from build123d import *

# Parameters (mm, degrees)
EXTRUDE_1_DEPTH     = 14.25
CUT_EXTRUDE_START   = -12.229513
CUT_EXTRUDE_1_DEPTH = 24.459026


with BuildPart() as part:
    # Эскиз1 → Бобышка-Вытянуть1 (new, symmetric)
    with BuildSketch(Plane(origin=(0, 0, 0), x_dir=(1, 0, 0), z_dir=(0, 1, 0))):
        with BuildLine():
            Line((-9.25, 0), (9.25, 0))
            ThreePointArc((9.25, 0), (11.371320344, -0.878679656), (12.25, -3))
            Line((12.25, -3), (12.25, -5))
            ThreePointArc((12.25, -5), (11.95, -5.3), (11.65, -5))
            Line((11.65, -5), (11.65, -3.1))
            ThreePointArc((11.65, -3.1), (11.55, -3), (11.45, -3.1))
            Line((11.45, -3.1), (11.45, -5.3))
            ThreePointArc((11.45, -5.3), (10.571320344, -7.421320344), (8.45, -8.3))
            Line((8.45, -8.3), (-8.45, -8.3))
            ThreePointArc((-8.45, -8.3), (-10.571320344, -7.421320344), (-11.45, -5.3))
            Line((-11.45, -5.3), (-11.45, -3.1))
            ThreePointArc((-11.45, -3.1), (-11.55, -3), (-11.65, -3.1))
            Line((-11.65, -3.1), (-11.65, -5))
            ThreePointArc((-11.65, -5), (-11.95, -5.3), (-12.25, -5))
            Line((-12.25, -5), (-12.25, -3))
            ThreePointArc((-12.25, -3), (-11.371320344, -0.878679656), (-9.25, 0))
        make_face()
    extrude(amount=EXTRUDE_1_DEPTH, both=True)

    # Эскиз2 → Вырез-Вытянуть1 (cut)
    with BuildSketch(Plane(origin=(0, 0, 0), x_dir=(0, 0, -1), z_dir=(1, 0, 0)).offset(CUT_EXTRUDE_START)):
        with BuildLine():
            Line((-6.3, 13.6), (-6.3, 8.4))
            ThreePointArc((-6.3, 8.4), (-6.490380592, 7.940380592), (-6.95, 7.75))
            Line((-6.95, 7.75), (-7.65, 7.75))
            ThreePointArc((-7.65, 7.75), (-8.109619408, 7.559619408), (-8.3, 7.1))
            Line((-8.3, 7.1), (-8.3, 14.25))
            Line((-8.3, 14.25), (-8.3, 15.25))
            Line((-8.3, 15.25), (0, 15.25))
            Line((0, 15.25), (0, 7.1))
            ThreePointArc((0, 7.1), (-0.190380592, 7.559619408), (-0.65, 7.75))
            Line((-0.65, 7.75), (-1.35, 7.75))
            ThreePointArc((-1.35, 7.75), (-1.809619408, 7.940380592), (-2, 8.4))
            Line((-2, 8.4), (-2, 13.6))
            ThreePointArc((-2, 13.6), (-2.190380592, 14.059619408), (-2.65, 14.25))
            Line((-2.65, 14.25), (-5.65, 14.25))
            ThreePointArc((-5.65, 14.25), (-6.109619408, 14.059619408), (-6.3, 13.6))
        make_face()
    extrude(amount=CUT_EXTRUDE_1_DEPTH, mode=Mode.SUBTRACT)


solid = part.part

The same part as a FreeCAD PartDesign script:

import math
import FreeCAD as App
import Part
import Sketcher
from FreeCAD import Vector

doc = App.newDocument("Part")
body = doc.addObject("PartDesign::Body", "Body")

# Sketch on XZ plane
sketch1 = doc.addObject("Sketcher::SketchObject", "Sketch")
body.addObject(sketch1)
sketch1.AttachmentSupport = (doc.XZ_Plane, [""])
sketch1.MapMode = "FlatFace"
sketch1.addGeometry(Part.LineSegment(Vector(9.25, 0, 0), Vector(-9.25, 0, 0)), False)
sketch1.addGeometry(Part.ArcOfCircle(Part.Circle(Vector(-9.25, 3, 0), Vector(0, 0, 1), 3), math.radians(180), math.radians(270)), False)
sketch1.addGeometry(Part.LineSegment(Vector(-12.25, 3, 0), Vector(-12.25, 5, 0)), False)
sketch1.addGeometry(Part.ArcOfCircle(Part.Circle(Vector(-11.95, 5, 0), Vector(0, 0, 1), 0.3), math.radians(0), math.radians(180)), False)
sketch1.addGeometry(Part.LineSegment(Vector(-11.65, 5, 0), Vector(-11.65, 3.1, 0)), False)
sketch1.addGeometry(Part.ArcOfCircle(Part.Circle(Vector(-11.55, 3.1, 0), Vector(0, 0, 1), 0.1), math.radians(180), math.radians(360)), False)
sketch1.addGeometry(Part.LineSegment(Vector(-11.45, 3.1, 0), Vector(-11.45, 5.3, 0)), False)
sketch1.addGeometry(Part.ArcOfCircle(Part.Circle(Vector(-8.45, 5.3, 0), Vector(0, 0, 1), 3), math.radians(90), math.radians(180)), False)
sketch1.addGeometry(Part.LineSegment(Vector(-8.45, 8.3, 0), Vector(8.45, 8.3, 0)), False)
sketch1.addGeometry(Part.ArcOfCircle(Part.Circle(Vector(8.45, 5.3, 0), Vector(0, 0, 1), 3), math.radians(0), math.radians(90)), False)
sketch1.addGeometry(Part.LineSegment(Vector(11.45, 5.3, 0), Vector(11.45, 3.1, 0)), False)
sketch1.addGeometry(Part.ArcOfCircle(Part.Circle(Vector(11.55, 3.1, 0), Vector(0, 0, 1), 0.1), math.radians(180), math.radians(360)), False)
sketch1.addGeometry(Part.LineSegment(Vector(11.65, 3.1, 0), Vector(11.65, 5, 0)), False)
sketch1.addGeometry(Part.ArcOfCircle(Part.Circle(Vector(11.95, 5, 0), Vector(0, 0, 1), 0.3), math.radians(0), math.radians(180)), False)
sketch1.addGeometry(Part.LineSegment(Vector(12.25, 5, 0), Vector(12.25, 3, 0)), False)
sketch1.addGeometry(Part.ArcOfCircle(Part.Circle(Vector(9.25, 3, 0), Vector(0, 0, 1), 3), math.radians(-90), math.radians(0)), False)
sketch1.addConstraint(Sketcher.Constraint("Tangent", 0, 2, 1, 2))
sketch1.addConstraint(Sketcher.Constraint("Tangent", 1, 1, 2, 1))
sketch1.addConstraint(Sketcher.Constraint("Tangent", 2, 2, 3, 2))
sketch1.addConstraint(Sketcher.Constraint("Tangent", 3, 1, 4, 1))
sketch1.addConstraint(Sketcher.Constraint("Tangent", 4, 2, 5, 1))
sketch1.addConstraint(Sketcher.Constraint("Tangent", 5, 2, 6, 1))
sketch1.addConstraint(Sketcher.Constraint("Tangent", 6, 2, 7, 2))
sketch1.addConstraint(Sketcher.Constraint("Tangent", 7, 1, 8, 1))
sketch1.addConstraint(Sketcher.Constraint("Tangent", 8, 2, 9, 2))
sketch1.addConstraint(Sketcher.Constraint("Tangent", 9, 1, 10, 1))
sketch1.addConstraint(Sketcher.Constraint("Tangent", 10, 2, 11, 1))
sketch1.addConstraint(Sketcher.Constraint("Tangent", 11, 2, 12, 1))
sketch1.addConstraint(Sketcher.Constraint("Tangent", 12, 2, 13, 2))
sketch1.addConstraint(Sketcher.Constraint("Tangent", 13, 1, 14, 1))
sketch1.addConstraint(Sketcher.Constraint("Tangent", 14, 2, 15, 2))
sketch1.addConstraint(Sketcher.Constraint("Tangent", 15, 1, 0, 1))
sketch1.addConstraint(Sketcher.Constraint("Horizontal", 0))
sketch1.addConstraint(Sketcher.Constraint("Vertical", 2))
sketch1.addConstraint(Sketcher.Constraint("Vertical", 4))
sketch1.addConstraint(Sketcher.Constraint("Vertical", 6))
sketch1.addConstraint(Sketcher.Constraint("Horizontal", 8))
sketch1.addConstraint(Sketcher.Constraint("Vertical", 10))
sketch1.addConstraint(Sketcher.Constraint("Vertical", 12))
sketch1.addConstraint(Sketcher.Constraint("Vertical", 14))
sketch1.addConstraint(Sketcher.Constraint("Equal", 1, 7))
sketch1.addConstraint(Sketcher.Constraint("Equal", 7, 9))
sketch1.addConstraint(Sketcher.Constraint("Equal", 5, 11))
sketch1.addConstraint(Sketcher.Constraint("Equal", 3, 13))
sketch1.addConstraint(Sketcher.Constraint("Equal", 9, 15))
sketch1.addConstraint(Sketcher.Constraint("Symmetric", 0, 2, 15, 1, -1, 1))
sketch1.addConstraint(Sketcher.Constraint("Horizontal", 5, 3, 11, 3))
sketch1.addConstraint(Sketcher.Constraint("Horizontal", 3, 3, 13, 3))
sketch1.addConstraint(Sketcher.Constraint("Radius", 1, 3.0))
sketch1.addConstraint(Sketcher.Constraint("Radius", 3, 0.3))
sketch1.addConstraint(Sketcher.Constraint("Radius", 5, 0.1))
sketch1.addConstraint(Sketcher.Constraint("DistanceY", 2, 1, 2, 2, 2.0))
sketch1.addConstraint(Sketcher.Constraint("DistanceX", 0, 2, 0, 1, 18.5))
sketch1.addConstraint(Sketcher.Constraint("DistanceY", 4, 2, 4, 1, 1.9))
sketch1.addConstraint(Sketcher.Constraint("DistanceY", 6, 1, 6, 2, 2.2))
pad1 = doc.addObject("PartDesign::Pad", "Pad")
body.addObject(pad1)
pad1.Profile = sketch1
pad1.Length = 28.5
pad1.Midplane = True

# Sketch on YZ plane
sketch2 = doc.addObject("Sketcher::SketchObject", "Sketch001")
body.addObject(sketch2)
sketch2.AttachmentSupport = (doc.YZ_Plane, [""])
sketch2.MapMode = "FlatFace"
sketch2.AttachmentOffset = App.Placement(Vector(0, 0, -12.229513), App.Rotation())
sketch2.addGeometry(Part.LineSegment(Vector(8.4, 6.3, 0), Vector(13.6, 6.3, 0)), False)
sketch2.addGeometry(Part.ArcOfCircle(Part.Circle(Vector(13.6, 5.7, 0), Vector(0, 0, 1), 0.6), math.radians(0), math.radians(90)), False)
sketch2.addGeometry(Part.LineSegment(Vector(14.2, 5.7, 0), Vector(14.2, 2.6, 0)), False)
sketch2.addGeometry(Part.ArcOfCircle(Part.Circle(Vector(13.6, 2.6, 0), Vector(0, 0, 1), 0.6), math.radians(-90), math.radians(0)), False)
sketch2.addGeometry(Part.LineSegment(Vector(13.6, 2, 0), Vector(8.4, 2, 0)), False)
sketch2.addGeometry(Part.ArcOfCircle(Part.Circle(Vector(8.4, 1.4, 0), Vector(0, 0, 1), 0.6), math.radians(90), math.radians(180)), False)
sketch2.addGeometry(Part.LineSegment(Vector(7.8, 1.4, 0), Vector(7.8, 0.7, 0)), False)
sketch2.addGeometry(Part.ArcOfCircle(Part.Circle(Vector(7.1, 0.6, 0), Vector(0, 0, 1), 0.6), math.radians(-90), math.radians(0)), False)
sketch2.addGeometry(Part.LineSegment(Vector(7.1, 0, 0), Vector(15.2, 0, 0)), False)
sketch2.addGeometry(Part.LineSegment(Vector(15.2, 0, 0), Vector(15.2, 8.3, 0)), False)
sketch2.addGeometry(Part.LineSegment(Vector(15.2, 8.3, 0), Vector(7.1, 8.3, 0)), False)
sketch2.addGeometry(Part.ArcOfCircle(Part.Circle(Vector(7.1, 7.7, 0), Vector(0, 0, 1), 0.6), math.radians(0), math.radians(90)), False)
sketch2.addGeometry(Part.LineSegment(Vector(7.8, 7.7, 0), Vector(7.8, 7, 0)), False)
sketch2.addGeometry(Part.ArcOfCircle(Part.Circle(Vector(8.4, 6.9, 0), Vector(0, 0, 1), 0.6), math.radians(180), math.radians(270)), False)
sketch2.addConstraint(Sketcher.Constraint("Tangent", 0, 2, 1, 2))
sketch2.addConstraint(Sketcher.Constraint("Tangent", 1, 1, 2, 1))
sketch2.addConstraint(Sketcher.Constraint("Tangent", 2, 2, 3, 2))
sketch2.addConstraint(Sketcher.Constraint("Tangent", 3, 1, 4, 1))
sketch2.addConstraint(Sketcher.Constraint("Tangent", 4, 2, 5, 1))
sketch2.addConstraint(Sketcher.Constraint("Tangent", 5, 2, 6, 1))
sketch2.addConstraint(Sketcher.Constraint("Tangent", 6, 2, 7, 2))
sketch2.addConstraint(Sketcher.Constraint("Tangent", 7, 1, 8, 1))
sketch2.addConstraint(Sketcher.Constraint("Coincident", 8, 2, 9, 1))
sketch2.addConstraint(Sketcher.Constraint("Coincident", 9, 2, 10, 1))
sketch2.addConstraint(Sketcher.Constraint("Tangent", 10, 2, 11, 2))
sketch2.addConstraint(Sketcher.Constraint("Tangent", 11, 1, 12, 1))
sketch2.addConstraint(Sketcher.Constraint("Tangent", 12, 2, 13, 1))
sketch2.addConstraint(Sketcher.Constraint("Tangent", 13, 2, 0, 1))
sketch2.addConstraint(Sketcher.Constraint("Horizontal", 0))
sketch2.addConstraint(Sketcher.Constraint("Vertical", 2))
sketch2.addConstraint(Sketcher.Constraint("Horizontal", 4))
sketch2.addConstraint(Sketcher.Constraint("Vertical", 6))
sketch2.addConstraint(Sketcher.Constraint("Horizontal", 8))
sketch2.addConstraint(Sketcher.Constraint("Vertical", 9))
sketch2.addConstraint(Sketcher.Constraint("Horizontal", 10))
sketch2.addConstraint(Sketcher.Constraint("Vertical", 12))
sketch2.addConstraint(Sketcher.Constraint("Equal", 1, 3))
sketch2.addConstraint(Sketcher.Constraint("Equal", 3, 5))
sketch2.addConstraint(Sketcher.Constraint("Equal", 5, 7))
sketch2.addConstraint(Sketcher.Constraint("Equal", 7, 11))
sketch2.addConstraint(Sketcher.Constraint("Equal", 11, 13))
sketch2.addConstraint(Sketcher.Constraint("PointOnObject", 7, 1, -1))
sketch2.addConstraint(Sketcher.Constraint("Vertical", 7, 3, 11, 3))
sketch2.addConstraint(Sketcher.Constraint("Equal", 6, 12))
sketch2.addConstraint(Sketcher.Constraint("DistanceY", 2, 2, 2, 1, 3.0))
sketch2.addConstraint(Sketcher.Constraint("Radius", 1, 0.65))
sketch2.addConstraint(Sketcher.Constraint("DistanceX", 0, 1, 0, 2, 5.2))
sketch2.addConstraint(Sketcher.Constraint("DistanceY", 6, 2, 6, 1, 0.7))
sketch2.addConstraint(Sketcher.Constraint("DistanceX", 2, 2, 8, 2, 1.0))
sketch2.addConstraint(Sketcher.Constraint("DistanceX", -1, 1, 1, 3, 13.6))
pocket1 = doc.addObject("PartDesign::Pocket", "Pocket")
body.addObject(pocket1)
pocket1.Profile = sketch2
pocket1.Length = 24.459026
pocket1.Reversed = True

doc.recompute()
